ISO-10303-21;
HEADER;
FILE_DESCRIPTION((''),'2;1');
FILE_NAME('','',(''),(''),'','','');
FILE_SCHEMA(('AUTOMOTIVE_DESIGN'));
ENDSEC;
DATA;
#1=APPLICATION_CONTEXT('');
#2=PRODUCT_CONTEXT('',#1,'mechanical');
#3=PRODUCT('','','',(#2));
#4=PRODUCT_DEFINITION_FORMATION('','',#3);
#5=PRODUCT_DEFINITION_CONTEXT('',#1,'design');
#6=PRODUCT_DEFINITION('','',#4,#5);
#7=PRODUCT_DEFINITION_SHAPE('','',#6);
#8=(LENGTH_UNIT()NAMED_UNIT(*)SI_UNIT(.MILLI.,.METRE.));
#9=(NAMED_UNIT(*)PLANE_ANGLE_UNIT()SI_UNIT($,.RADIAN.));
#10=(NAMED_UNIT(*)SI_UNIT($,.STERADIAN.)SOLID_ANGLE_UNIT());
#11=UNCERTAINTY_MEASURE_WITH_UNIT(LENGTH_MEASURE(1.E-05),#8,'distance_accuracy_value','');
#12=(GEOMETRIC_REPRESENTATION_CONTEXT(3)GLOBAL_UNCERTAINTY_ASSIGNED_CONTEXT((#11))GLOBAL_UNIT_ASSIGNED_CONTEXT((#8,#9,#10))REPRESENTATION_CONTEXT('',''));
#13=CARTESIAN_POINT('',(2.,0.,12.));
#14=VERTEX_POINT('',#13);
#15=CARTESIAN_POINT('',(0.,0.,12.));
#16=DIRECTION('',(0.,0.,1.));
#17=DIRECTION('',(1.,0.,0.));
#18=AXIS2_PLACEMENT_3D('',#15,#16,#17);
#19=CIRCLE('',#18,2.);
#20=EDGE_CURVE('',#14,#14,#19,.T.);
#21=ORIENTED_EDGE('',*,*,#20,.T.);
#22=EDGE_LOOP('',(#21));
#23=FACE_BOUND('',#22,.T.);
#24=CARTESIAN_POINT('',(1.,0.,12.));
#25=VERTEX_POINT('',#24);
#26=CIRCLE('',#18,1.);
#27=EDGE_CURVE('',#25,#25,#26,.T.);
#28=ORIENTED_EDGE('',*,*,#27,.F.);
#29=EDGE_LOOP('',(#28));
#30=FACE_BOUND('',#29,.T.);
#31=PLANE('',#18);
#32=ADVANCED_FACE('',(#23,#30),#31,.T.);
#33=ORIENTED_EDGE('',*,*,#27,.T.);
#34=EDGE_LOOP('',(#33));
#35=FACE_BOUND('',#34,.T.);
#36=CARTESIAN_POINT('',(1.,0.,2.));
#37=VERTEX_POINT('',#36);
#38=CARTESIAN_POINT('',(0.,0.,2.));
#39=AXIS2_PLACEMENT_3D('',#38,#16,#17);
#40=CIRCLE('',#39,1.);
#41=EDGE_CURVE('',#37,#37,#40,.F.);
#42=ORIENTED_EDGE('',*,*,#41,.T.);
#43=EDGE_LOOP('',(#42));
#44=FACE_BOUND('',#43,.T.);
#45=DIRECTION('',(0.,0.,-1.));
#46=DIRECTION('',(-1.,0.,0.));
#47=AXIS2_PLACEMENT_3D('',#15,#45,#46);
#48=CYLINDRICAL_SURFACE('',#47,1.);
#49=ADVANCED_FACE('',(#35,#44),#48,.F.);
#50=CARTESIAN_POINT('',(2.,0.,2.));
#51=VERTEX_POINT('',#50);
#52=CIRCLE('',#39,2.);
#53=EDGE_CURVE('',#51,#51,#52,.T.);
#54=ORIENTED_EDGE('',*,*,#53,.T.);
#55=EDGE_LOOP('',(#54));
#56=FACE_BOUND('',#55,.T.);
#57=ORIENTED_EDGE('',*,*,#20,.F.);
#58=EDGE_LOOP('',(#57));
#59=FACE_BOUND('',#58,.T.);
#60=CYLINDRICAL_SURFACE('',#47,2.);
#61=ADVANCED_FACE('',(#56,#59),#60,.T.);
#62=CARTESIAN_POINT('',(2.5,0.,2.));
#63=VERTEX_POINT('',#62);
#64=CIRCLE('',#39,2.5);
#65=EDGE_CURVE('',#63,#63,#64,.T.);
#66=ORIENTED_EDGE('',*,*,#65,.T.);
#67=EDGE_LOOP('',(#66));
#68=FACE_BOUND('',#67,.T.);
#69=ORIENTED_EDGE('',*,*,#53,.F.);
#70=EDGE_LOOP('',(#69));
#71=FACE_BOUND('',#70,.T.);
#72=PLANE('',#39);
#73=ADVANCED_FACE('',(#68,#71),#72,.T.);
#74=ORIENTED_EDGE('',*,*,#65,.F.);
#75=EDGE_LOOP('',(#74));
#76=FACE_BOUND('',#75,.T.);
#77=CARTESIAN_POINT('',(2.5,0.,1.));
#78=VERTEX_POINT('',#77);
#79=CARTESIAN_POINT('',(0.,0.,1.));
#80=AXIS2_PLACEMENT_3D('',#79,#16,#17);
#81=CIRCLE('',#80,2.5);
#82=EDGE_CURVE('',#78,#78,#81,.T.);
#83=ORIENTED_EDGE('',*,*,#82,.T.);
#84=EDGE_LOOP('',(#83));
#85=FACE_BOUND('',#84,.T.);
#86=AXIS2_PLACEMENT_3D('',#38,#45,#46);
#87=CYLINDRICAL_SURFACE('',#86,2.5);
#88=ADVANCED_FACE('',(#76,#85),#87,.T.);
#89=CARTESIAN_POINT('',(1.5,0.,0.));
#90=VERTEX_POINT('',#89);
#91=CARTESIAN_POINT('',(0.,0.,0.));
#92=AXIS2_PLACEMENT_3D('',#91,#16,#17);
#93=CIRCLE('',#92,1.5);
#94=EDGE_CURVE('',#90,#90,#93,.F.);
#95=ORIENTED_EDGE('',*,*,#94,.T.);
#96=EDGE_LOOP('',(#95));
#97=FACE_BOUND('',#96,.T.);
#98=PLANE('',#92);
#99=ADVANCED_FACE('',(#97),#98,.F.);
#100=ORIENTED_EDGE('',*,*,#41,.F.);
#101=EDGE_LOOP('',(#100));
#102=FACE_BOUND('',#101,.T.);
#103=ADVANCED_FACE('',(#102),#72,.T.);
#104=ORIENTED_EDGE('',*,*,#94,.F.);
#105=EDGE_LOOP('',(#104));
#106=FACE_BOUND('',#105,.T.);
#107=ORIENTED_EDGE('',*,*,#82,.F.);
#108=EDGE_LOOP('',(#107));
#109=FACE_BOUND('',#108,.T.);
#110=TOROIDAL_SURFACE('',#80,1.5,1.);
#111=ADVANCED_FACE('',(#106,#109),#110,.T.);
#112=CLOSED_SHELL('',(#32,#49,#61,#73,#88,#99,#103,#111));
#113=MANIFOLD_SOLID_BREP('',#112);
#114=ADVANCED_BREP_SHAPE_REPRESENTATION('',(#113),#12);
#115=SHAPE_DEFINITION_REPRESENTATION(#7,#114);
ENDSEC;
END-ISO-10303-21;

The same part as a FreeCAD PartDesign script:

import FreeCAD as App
import Part
import Sketcher
from FreeCAD import Vector


def edges_at(feature, points):
    """Names of the edges that pass closest to the given points."""
    edges = feature.Shape.Edges
    near = lambda p: min(range(len(edges)), key=lambda i: edges[i].distToShape(Part.Vertex(*p))[0])
    return sorted({f"Edge{near(p) + 1}" for p in points})

doc = App.newDocument("Part")
body = doc.addObject("PartDesign::Body", "Body")

# Sketch on XY plane
sketch1 = body.newObject("Sketcher::SketchObject", "Sketch")
sketch1.AttachmentSupport = (doc.getObject("XY_Plane"), [""])
sketch1.MapMode = "FlatFace"
sketch1.addGeometry(Part.Circle(Vector(0, 0, 0), Vector(0, 0, 1), 2.5), False)
sketch1.addConstraint(Sketcher.Constraint("Coincident", 0, 3, -1, 1))
sketch1.addConstraint(Sketcher.Constraint("Diameter", 0, 5.0))
pad1 = body.newObject("PartDesign::Pad", "Pad")
pad1.Profile = sketch1
pad1.Length = 2

# Sketch on XY plane
sketch2 = body.newObject("Sketcher::SketchObject", "Sketch001")
sketch2.AttachmentSupport = (doc.getObject("XY_Plane"), [""])
sketch2.MapMode = "FlatFace"
sketch2.AttachmentOffset = App.Placement(Vector(0, 0, 2), App.Rotation())
sketch2.addGeometry(Part.Circle(Vector(0, 0, 0), Vector(0, 0, 1), 2), False)
sketch2.addGeometry(Part.Circle(Vector(0, 0, 0), Vector(0, 0, 1), 1), False)
sketch2.addConstraint(Sketcher.Constraint("Coincident", 0, 3, -1, 1))
sketch2.addConstraint(Sketcher.Constraint("Coincident", 1, 3, -1, 1))
sketch2.addConstraint(Sketcher.Constraint("Diameter", 0, 4.0))
sketch2.addConstraint(Sketcher.Constraint("Diameter", 1, 2.0))
pad2 = body.newObject("PartDesign::Pad", "Pad001")
pad2.Profile = sketch2
pad2.Length = 10
doc.recompute()

fillet = body.newObject("PartDesign::Fillet", "Fillet")
fillet.Base = (pad2, edges_at(pad2, [(-2.5, 0, 0)]))
fillet.Radius = 1

doc.recompute()
